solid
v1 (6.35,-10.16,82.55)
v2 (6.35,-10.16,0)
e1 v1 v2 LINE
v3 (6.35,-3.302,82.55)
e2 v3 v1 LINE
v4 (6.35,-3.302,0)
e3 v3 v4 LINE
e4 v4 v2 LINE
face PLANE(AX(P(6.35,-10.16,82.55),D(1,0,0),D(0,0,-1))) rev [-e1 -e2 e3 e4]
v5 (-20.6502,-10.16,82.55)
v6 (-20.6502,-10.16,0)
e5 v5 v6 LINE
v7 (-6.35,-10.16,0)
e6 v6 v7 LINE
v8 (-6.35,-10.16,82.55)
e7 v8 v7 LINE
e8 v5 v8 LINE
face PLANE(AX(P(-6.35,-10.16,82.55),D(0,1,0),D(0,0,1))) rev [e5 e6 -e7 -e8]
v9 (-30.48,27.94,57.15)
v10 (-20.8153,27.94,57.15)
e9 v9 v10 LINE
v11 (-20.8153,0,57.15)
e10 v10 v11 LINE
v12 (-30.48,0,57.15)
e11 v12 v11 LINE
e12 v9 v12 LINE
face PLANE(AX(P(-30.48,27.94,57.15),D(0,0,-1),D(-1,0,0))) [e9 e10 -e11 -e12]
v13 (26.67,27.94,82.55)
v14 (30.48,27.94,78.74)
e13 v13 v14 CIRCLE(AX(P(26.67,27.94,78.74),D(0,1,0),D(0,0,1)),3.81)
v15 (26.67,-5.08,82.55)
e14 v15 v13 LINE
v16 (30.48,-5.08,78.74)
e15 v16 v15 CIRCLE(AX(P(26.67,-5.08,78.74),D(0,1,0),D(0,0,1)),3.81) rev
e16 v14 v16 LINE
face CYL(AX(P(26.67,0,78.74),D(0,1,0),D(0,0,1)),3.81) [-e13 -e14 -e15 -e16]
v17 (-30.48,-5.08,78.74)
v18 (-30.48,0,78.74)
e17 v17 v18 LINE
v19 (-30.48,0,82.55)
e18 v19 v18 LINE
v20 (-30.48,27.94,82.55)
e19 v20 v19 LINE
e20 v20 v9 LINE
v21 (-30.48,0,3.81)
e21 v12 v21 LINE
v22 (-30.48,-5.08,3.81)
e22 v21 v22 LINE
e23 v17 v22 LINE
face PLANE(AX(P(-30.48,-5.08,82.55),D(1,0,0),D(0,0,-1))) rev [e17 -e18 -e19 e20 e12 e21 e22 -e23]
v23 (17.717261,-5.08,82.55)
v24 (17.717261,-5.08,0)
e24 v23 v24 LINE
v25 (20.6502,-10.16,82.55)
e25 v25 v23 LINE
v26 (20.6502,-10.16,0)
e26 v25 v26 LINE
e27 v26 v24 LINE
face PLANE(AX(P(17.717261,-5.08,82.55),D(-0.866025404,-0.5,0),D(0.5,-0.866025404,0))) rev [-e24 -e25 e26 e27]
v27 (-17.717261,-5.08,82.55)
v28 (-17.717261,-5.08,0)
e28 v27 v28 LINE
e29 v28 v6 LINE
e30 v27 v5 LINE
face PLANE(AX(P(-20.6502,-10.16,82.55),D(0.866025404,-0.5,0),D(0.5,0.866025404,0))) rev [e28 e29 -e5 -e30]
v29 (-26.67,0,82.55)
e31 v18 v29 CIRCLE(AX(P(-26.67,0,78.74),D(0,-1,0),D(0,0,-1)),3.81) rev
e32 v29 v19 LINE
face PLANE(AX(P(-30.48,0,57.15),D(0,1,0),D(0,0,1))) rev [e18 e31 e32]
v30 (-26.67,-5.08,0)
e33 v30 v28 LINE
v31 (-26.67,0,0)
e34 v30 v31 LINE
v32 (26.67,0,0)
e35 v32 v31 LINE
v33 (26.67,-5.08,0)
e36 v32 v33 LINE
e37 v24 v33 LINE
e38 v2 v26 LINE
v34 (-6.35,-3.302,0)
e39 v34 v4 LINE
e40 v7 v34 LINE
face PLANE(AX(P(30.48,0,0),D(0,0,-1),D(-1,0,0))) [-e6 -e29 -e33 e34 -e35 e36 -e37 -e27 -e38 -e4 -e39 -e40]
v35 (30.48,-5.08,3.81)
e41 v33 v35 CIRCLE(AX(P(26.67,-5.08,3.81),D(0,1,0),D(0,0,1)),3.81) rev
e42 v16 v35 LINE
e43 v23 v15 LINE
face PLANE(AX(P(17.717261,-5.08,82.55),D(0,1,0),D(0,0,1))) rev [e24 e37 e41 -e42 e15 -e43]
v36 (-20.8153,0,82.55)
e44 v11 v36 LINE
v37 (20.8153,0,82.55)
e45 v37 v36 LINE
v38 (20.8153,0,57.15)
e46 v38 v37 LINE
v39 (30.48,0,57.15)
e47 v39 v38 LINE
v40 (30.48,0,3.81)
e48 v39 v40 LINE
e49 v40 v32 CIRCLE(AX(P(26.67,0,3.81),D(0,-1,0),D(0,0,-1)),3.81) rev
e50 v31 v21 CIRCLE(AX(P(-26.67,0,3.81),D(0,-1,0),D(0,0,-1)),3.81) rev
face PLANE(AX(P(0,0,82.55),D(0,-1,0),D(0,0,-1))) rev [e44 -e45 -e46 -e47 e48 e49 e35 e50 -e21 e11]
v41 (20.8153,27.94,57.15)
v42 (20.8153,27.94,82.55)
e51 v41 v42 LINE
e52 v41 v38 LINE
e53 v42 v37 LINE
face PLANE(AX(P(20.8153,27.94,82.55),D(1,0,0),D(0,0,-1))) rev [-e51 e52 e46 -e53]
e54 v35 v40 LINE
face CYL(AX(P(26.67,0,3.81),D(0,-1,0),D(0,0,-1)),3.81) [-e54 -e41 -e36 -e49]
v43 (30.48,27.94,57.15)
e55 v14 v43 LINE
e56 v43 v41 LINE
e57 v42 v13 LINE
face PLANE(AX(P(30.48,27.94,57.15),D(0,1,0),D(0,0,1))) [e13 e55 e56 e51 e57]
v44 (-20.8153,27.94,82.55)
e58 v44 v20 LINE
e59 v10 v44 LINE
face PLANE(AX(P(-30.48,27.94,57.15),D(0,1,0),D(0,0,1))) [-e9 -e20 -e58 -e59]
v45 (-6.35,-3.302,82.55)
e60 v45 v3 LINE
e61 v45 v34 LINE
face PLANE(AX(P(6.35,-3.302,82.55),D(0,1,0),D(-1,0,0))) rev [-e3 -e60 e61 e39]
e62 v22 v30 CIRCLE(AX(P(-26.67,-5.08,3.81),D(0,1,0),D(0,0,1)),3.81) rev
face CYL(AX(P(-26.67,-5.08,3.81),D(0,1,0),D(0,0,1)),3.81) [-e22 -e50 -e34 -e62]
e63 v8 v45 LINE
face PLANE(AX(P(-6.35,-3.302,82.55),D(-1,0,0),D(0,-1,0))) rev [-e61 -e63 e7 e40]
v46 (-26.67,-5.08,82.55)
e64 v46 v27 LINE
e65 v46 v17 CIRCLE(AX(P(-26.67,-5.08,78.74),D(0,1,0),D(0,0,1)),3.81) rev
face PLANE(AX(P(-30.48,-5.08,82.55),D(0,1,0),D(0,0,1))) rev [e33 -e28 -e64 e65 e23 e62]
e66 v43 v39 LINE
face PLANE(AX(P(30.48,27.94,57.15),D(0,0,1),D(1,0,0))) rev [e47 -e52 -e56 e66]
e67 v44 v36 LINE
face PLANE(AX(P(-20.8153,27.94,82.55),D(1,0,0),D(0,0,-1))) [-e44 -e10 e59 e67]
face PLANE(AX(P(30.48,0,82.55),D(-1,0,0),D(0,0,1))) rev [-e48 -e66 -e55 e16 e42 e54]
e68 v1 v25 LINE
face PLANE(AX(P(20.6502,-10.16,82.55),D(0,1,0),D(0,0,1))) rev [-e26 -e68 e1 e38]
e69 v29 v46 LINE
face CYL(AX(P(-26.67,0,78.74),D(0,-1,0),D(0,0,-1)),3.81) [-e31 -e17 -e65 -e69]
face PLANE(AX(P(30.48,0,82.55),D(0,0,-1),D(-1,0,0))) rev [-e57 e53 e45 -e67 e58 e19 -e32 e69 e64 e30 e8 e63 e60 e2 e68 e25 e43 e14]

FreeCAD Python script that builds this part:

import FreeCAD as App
import Part
import Sketcher
from FreeCAD import Vector
Q = App.Units.Quantity


def edges_at(feature, points):
    """Names of the edges that pass closest to the given points."""
    edges = feature.Shape.Edges
    near = lambda p: min(range(len(edges)), key=lambda i: edges[i].distToShape(Part.Vertex(*p))[0])
    return sorted({f"Edge{near(p) + 1}" for p in points})

doc = App.newDocument("Part")
body = doc.addObject("PartDesign::Body", "Body")

# Sketch on XY plane
sketch1 = body.newObject("Sketcher::SketchObject", "Sketch")
sketch1.AttachmentSupport = (doc.getObject("XY_Plane"), [""])
sketch1.MapMode = "FlatFace"
sketch1.addGeometry(Part.LineSegment(Vector(30.48, 0, 0), Vector(-30.48, 0, 0)), False)
sketch1.addGeometry(Part.LineSegment(Vector(-30.48, 0, 0), Vector(-30.48, -5.08, 0)), False)
sketch1.addGeometry(Part.LineSegment(Vector(-30.48, -5.08, 0), Vector(-17.717261, -5.08, 0)), False)
sketch1.addGeometry(Part.LineSegment(Vector(-17.717261, -5.08, 0), Vector(-20.6502, -10.16, 0)), False)
sketch1.addGeometry(Part.LineSegment(Vector(-20.6502, -10.16, 0), Vector(-6.35, -10.16, 0)), False)
sketch1.addGeometry(Part.LineSegment(Vector(-6.35, -10.16, 0), Vector(-6.35, -3.302, 0)), False)
sketch1.addGeometry(Part.LineSegment(Vector(-6.35, -3.302, 0), Vector(6.35, -3.302, 0)), False)
sketch1.addGeometry(Part.LineSegment(Vector(6.35, -3.302, 0), Vector(6.35, -10.16, 0)), False)
sketch1.addGeometry(Part.LineSegment(Vector(6.35, -10.16, 0), Vector(20.6502, -10.16, 0)), False)
sketch1.addGeometry(Part.LineSegment(Vector(20.6502, -10.16, 0), Vector(17.717261, -5.08, 0)), False)
sketch1.addGeometry(Part.LineSegment(Vector(17.717261, -5.08, 0), Vector(30.48, -5.08, 0)), False)
sketch1.addGeometry(Part.LineSegment(Vector(30.48, -5.08, 0), Vector(30.48, 0, 0)), False)
sketch1.addConstraint(Sketcher.Constraint("Coincident", 0, 2, 1, 1))
sketch1.addConstraint(Sketcher.Constraint("Coincident", 1, 2, 2, 1))
sketch1.addConstraint(Sketcher.Constraint("Coincident", 2, 2, 3, 1))
sketch1.addConstraint(Sketcher.Constraint("Coincident", 3, 2, 4, 1))
sketch1.addConstraint(Sketcher.Constraint("Coincident", 4, 2, 5, 1))
sketch1.addConstraint(Sketcher.Constraint("Coincident", 5, 2, 6, 1))
sketch1.addConstraint(Sketcher.Constraint("Coincident", 6, 2, 7, 1))
sketch1.addConstraint(Sketcher.Constraint("Coincident", 7, 2, 8, 1))
sketch1.addConstraint(Sketcher.Constraint("Coincident", 8, 2, 9, 1))
sketch1.addConstraint(Sketcher.Constraint("Coincident", 9, 2, 10, 1))
sketch1.addConstraint(Sketcher.Constraint("Coincident", 10, 2, 11, 1))
sketch1.addConstraint(Sketcher.Constraint("Coincident", 11, 2, 0, 1))
sketch1.addConstraint(Sketcher.Constraint("Horizontal", 0))
sketch1.addConstraint(Sketcher.Constraint("Vertical", 1))
sketch1.addConstraint(Sketcher.Constraint("Horizontal", 2))
sketch1.addConstraint(Sketcher.Constraint("Horizontal", 4))
sketch1.addConstraint(Sketcher.Constraint("Vertical", 5))
sketch1.addConstraint(Sketcher.Constraint("Horizontal", 6))
sketch1.addConstraint(Sketcher.Constraint("Vertical", 7))
sketch1.addConstraint(Sketcher.Constraint("Horizontal", 8))
sketch1.addConstraint(Sketcher.Constraint("Horizontal", 10))
sketch1.addConstraint(Sketcher.Constraint("Vertical", 11))
sketch1.addConstraint(Sketcher.Constraint("Symmetric", 0, 2, 11, 2, -1, 1))
sketch1.addConstraint(Sketcher.Constraint("Symmetric", 4, 2, 7, 2, -2))
sketch1.addConstraint(Sketcher.Constraint("Symmetric", 2, 2, 9, 2, -2))
sketch1.addConstraint(Sketcher.Constraint("Equal", 4, 8))
sketch1.addConstraint(Sketcher.Constraint("DistanceX", 0, 2, 0, 1, Q("2.4 in")))
sketch1.addConstraint(Sketcher.Constraint("DistanceX", 6, 1, 6, 2, Q("0.5 in")))
sketch1.addConstraint(Sketcher.Constraint("DistanceY", 1, 2, 1, 1, Q("0.2 in")))
sketch1.addConstraint(Sketcher.Constraint("Angle", 3, Q("-120 deg")))
sketch1.addConstraint(Sketcher.Constraint("DistanceY", 5, 1, 5, 2, Q("0.27 in")))
sketch1.addConstraint(Sketcher.Constraint("DistanceY", 3, 2, -1, 1, Q("0.4 in")))
sketch1.addConstraint(Sketcher.Constraint("DistanceX", 4, 1, 4, 2, Q("0.563 in")))
pad1 = body.newObject("PartDesign::Pad", "Pad")
pad1.Profile = sketch1
pad1.Length = Q("3.25 in")

# Sketch on XZ plane
sketch2 = body.newObject("Sketcher::SketchObject", "Sketch001")
sketch2.AttachmentSupport = (doc.getObject("XZ_Plane"), [""])
sketch2.MapMode = "FlatFace"
sketch2.addGeometry(Part.LineSegment(Vector(20.8153, 57.15, 0), Vector(20.8153, 82.55, 0)), False)
sketch2.addGeometry(Part.LineSegment(Vector(20.8153, 82.55, 0), Vector(30.48, 82.55, 0)), False)
sketch2.addGeometry(Part.LineSegment(Vector(30.48, 82.55, 0), Vector(30.48, 57.15, 0)), False)
sketch2.addGeometry(Part.LineSegment(Vector(30.48, 57.15, 0), Vector(20.8153, 57.15, 0)), False)
sketch2.addConstraint(Sketcher.Constraint("Coincident", 0, 2, 1, 1))
sketch2.addConstraint(Sketcher.Constraint("Coincident", 1, 2, 2, 1))
sketch2.addConstraint(Sketcher.Constraint("Coincident", 2, 2, 3, 1))
sketch2.addConstraint(Sketcher.Constraint("Coincident", 3, 2, 0, 1))
sketch2.addConstraint(Sketcher.Constraint("Vertical", 0))
sketch2.addConstraint(Sketcher.Constraint("Horizontal", 1))
sketch2.addConstraint(Sketcher.Constraint("Vertical", 2))
sketch2.addConstraint(Sketcher.Constraint("Horizontal", 3))
sketch2.addConstraint(Sketcher.Constraint("DistanceY", 0, 1, 0, 2, Q("1 in")))
sketch2.addConstraint(Sketcher.Constraint("DistanceX", -1, 1, 1, 2, Q("1.2 in")))
sketch2.addConstraint(Sketcher.Constraint("DistanceY", -1, 1, 0, 2, Q("3.25 in")))
sketch2.addConstraint(Sketcher.Constraint("DistanceX", 1, 1, 1, 2, Q("0.3805 in")))
pad2 = body.newObject("PartDesign::Pad", "Pad001")
pad2.Profile = sketch2
pad2.Length = Q("1.1 in")
pad2.Reversed = True
doc.recompute()

fillet = body.newObject("PartDesign::Fillet", "Fillet")
fillet.Base = (pad2, edges_at(pad2, [
    (30.48, -2.54, 0),
    (-30.48, -2.54, 0),
    (30.48, 11.43, 82.55),
    (-30.48, -2.54, 82.55),
]))
fillet.Radius = Q("0.15 in")
doc.recompute()

mirrored = body.newObject("PartDesign::Mirrored", "Mirrored")
mirrored.Originals = [pad2]
mirrored.MirrorPlane = (doc.getObject("YZ_Plane"), [""])
body.Tip = mirrored

doc.recompute()
